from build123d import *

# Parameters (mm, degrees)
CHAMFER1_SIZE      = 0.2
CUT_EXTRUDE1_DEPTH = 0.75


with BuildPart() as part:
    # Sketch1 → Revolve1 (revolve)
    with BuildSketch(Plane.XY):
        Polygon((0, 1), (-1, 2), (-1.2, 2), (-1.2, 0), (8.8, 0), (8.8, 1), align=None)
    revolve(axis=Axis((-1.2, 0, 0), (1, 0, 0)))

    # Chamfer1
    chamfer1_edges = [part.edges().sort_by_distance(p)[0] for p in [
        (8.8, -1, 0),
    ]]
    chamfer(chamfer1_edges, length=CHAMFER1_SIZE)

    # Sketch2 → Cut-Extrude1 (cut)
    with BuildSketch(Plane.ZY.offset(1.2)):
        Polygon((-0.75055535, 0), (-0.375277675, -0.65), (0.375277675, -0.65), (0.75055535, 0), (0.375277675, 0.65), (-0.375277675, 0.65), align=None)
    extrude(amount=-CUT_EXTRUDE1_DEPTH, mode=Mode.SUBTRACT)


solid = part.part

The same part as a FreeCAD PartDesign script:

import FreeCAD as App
import Part
import Sketcher
Q = App.Units.Quantity


def edges_at(feature, points):
    """Names of the edges that pass closest to the given points."""
    edges = feature.Shape.Edges
    near = lambda p: min(range(len(edges)), key=lambda i: edges[i].distToShape(Part.Vertex(*p))[0])
    return sorted({f"Edge{near(p) + 1}" for p in points})

doc = App.newDocument("Part")
body = doc.addObject("PartDesign::Body", "Body")

# Sketch on XY plane
sketch1 = doc.addObject("Sketcher::SketchObject", "Sketch")
body.addObject(sketch1)
sketch1.AttachmentSupport = (doc.XY_Plane, [""])
sketch1.MapMode = "FlatFace"
sketch1.addGeometry(Part.LineSegment(App.Vector(0, 1, 0), App.Vector(-1, 2, 0)), False)
sketch1.addGeometry(Part.LineSegment(App.Vector(-1, 2, 0), App.Vector(-1.2, 2, 0)), False)
sketch1.addGeometry(Part.LineSegment(App.Vector(-1.2, 2, 0), App.Vector(-1.2, 0, 0)), False)
sketch1.addGeometry(Part.LineSegment(App.Vector(-1.2, 0, 0), App.Vector(8.8, 0, 0)), False)
sketch1.addGeometry(Part.LineSegment(App.Vector(8.8, 0, 0), App.Vector(8.8, 1, 0)), False)
sketch1.addGeometry(Part.LineSegment(App.Vector(8.8, 1, 0), App.Vector(0, 1, 0)), False)
sketch1.addConstraint(Sketcher.Constraint("Coincident", 0, 2, 1, 1))
sketch1.addConstraint(Sketcher.Constraint("Coincident", 1, 2, 2, 1))
sketch1.addConstraint(Sketcher.Constraint("Coincident", 2, 2, 3, 1))
sketch1.addConstraint(Sketcher.Constraint("Coincident", 3, 2, 4, 1))
sketch1.addConstraint(Sketcher.Constraint("Coincident", 4, 2, 5, 1))
sketch1.addConstraint(Sketcher.Constraint("Coincident", 5, 2, 0, 1))
sketch1.addConstraint(Sketcher.Constraint("Horizontal", 1))
sketch1.addConstraint(Sketcher.Constraint("Vertical", 2))
sketch1.addConstraint(Sketcher.Constraint("Horizontal", 3))
sketch1.addConstraint(Sketcher.Constraint("Vertical", 4))
sketch1.addConstraint(Sketcher.Constraint("Horizontal", 5))
sketch1.addConstraint(Sketcher.Constraint("PointOnObject", 2, 2, -1))
sketch1.addConstraint(Sketcher.Constraint("PointOnObject", 5, 2, -2))
sketch1.addConstraint(Sketcher.Constraint("DistanceX", 3, 1, 3, 2, 10.0))
sketch1.addConstraint(Sketcher.Constraint("DistanceY", 2, 2, 2, 1, 2.0))
sketch1.addConstraint(Sketcher.Constraint("DistanceY", 4, 1, 4, 2, 1.0))
sketch1.addConstraint(Sketcher.Constraint("Angle", 0, Q("135 deg")))
sketch1.addConstraint(Sketcher.Constraint("DistanceX", 1, 2, 1, 1, 0.2))
revolution = doc.addObject("PartDesign::Revolution", "Revolution")
body.addObject(revolution)
revolution.Profile = sketch1
revolution.ReferenceAxis = (sketch1, ["H_Axis"])
revolution.Angle = 360
doc.recompute()

chamfer = doc.addObject("PartDesign::Chamfer", "Chamfer")
body.addObject(chamfer)
chamfer.Base = (revolution, edges_at(revolution, [(8.8, -1, 0)]))
chamfer.Size = 0.2

# Sketch on YZ plane
sketch2 = doc.addObject("Sketcher::SketchObject", "Sketch001")
body.addObject(sketch2)
sketch2.AttachmentSupport = (doc.YZ_Plane, [""])
sketch2.MapMode = "FlatFace"
sketch2.AttachmentOffset = App.Placement(App.Vector(0, 0, -1.2), App.Rotation())
sketch2.addGeometry(Part.LineSegment(App.Vector(0, -0.8, 0), App.Vector(-0.7, -0.4, 0)), False)
sketch2.addGeometry(Part.LineSegment(App.Vector(-0.7, -0.4, 0), App.Vector(-0.7, 0.4, 0)), False)
sketch2.addGeometry(Part.LineSegment(App.Vector(-0.7, 0.4, 0), App.Vector(0, 0.8, 0)), False)
sketch2.addGeometry(Part.LineSegment(App.Vector(0, 0.8, 0), App.Vector(0.7, 0.4, 0)), False)
sketch2.addGeometry(Part.LineSegment(App.Vector(0.7, 0.4, 0), App.Vector(0.7, -0.4, 0)), False)
sketch2.addGeometry(Part.LineSegment(App.Vector(0.7, -0.4, 0), App.Vector(0, -0.8, 0)), False)
sketch2.addConstraint(Sketcher.Constraint("Coincident", 0, 2, 1, 1))
sketch2.addConstraint(Sketcher.Constraint("Coincident", 1, 2, 2, 1))
sketch2.addConstraint(Sketcher.Constraint("Coincident", 2, 2, 3, 1))
sketch2.addConstraint(Sketcher.Constraint("Coincident", 3, 2, 4, 1))
sketch2.addConstraint(Sketcher.Constraint("Coincident", 4, 2, 5, 1))
sketch2.addConstraint(Sketcher.Constraint("Coincident", 5, 2, 0, 1))
sketch2.addConstraint(Sketcher.Constraint("Vertical", 1))
sketch2.addConstraint(Sketcher.Constraint("Vertical", 4))
sketch2.addConstraint(Sketcher.Constraint("Symmetric", 0, 2, 3, 2, -1, 1))
sketch2.addConstraint(Sketcher.Constraint("Symmetric", 2, 2, 5, 2, -1, 1))
sketch2.addConstraint(Sketcher.Constraint("PointOnObject", 2, 2, -2))
sketch2.addConstraint(Sketcher.Constraint("Parallel", 2, 5))
sketch2.addConstraint(Sketcher.Constraint("Horizontal", 1, 2, 3, 2))
sketch2.addConstraint(Sketcher.Constraint("Angle", 0, Q("150 deg")))
sketch2.addConstraint(Sketcher.Constraint("DistanceX", 1, 2, 3, 2, 1.3))
sketch2.addConstraint(Sketcher.Constraint("DistanceY", 1, 1, 1, 2, 0.750555))
pocket1 = doc.addObject("PartDesign::Pocket", "Pocket")
body.addObject(pocket1)
pocket1.Profile = sketch2
pocket1.Length = 0.75
pocket1.Reversed = True

doc.recompute()
